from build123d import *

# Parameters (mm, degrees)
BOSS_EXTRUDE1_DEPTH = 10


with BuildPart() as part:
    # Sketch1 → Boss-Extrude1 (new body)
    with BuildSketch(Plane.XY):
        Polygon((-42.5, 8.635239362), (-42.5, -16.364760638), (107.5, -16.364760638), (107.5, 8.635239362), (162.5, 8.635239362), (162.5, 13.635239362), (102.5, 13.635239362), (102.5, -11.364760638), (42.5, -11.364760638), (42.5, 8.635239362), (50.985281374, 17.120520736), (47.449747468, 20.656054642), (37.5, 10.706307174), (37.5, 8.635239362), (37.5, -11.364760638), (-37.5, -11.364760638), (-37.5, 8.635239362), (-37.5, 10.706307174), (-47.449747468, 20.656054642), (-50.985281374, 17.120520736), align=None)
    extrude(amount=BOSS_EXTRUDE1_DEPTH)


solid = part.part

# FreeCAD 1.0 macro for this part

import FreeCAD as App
import Part
import Sketcher

V = App.Vector
Q = App.Units.Quantity


def add_polygon(sketch, points):
    """Adds a closed chain of lines whose ends are joined by coincident constraints."""
    first, n = sketch.GeometryCount, len(points)
    for a, b in zip(points, points[1:] + points[:1]):
        sketch.addGeometry(Part.LineSegment(App.Vector(*a, 0), App.Vector(*b, 0)), False)
    for i in range(n):
        sketch.addConstraint(Sketcher.Constraint("Coincident", first + i, 2, first + (i + 1) % n, 1))

doc = App.newDocument("Part")
body = doc.addObject("PartDesign::Body", "Body")

# Sketch on XY plane
sketch1 = doc.addObject("Sketcher::SketchObject", "Sketch")
body.addObject(sketch1)
sketch1.AttachmentSupport = (doc.XY_Plane, [""])
sketch1.MapMode = "FlatFace"
add_polygon(sketch1, [(-42.5, 8.635239), (-42.5, -16.364761), (107.5, -16.364761), (107.5, 8.635239), (162.5, 8.635239), (162.5, 13.635239), (102.5, 13.635239), (102.5, -11.364761), (42.5, -11.364761), (42.5, 8.635239), (50.985281, 17.120521), (47.449747, 20.656055), (37.5, 10.706307), (37.5, -11.364761), (-37.5, -11.364761), (-37.5, 10.706307), (-47.449747, 20.656055), (-50.985281, 17.120521)])  # lines 0-17
sketch1.addConstraint([
    Sketcher.Constraint("Vertical", 0),
    Sketcher.Constraint("Horizontal", 1),
    Sketcher.Constraint("Vertical", 2),
    Sketcher.Constraint("Horizontal", 3),
    Sketcher.Constraint("Vertical", 4),
    Sketcher.Constraint("Horizontal", 5),
    Sketcher.Constraint("Vertical", 6),
    Sketcher.Constraint("Horizontal", 7),
    Sketcher.Constraint("Vertical", 8),
    Sketcher.Constraint("Vertical", 12),
    Sketcher.Constraint("Horizontal", 13),
    Sketcher.Constraint("Vertical", 14),
    Sketcher.Constraint("Symmetric", 11, 2, 14, 2, -2),
    Sketcher.Constraint("Symmetric", 10, 2, 15, 2, -2),
    Sketcher.Constraint("Symmetric", 9, 2, 16, 2, -2),
    Sketcher.Constraint("Symmetric", 8, 2, 17, 2, -2),
    Sketcher.Constraint("Perpendicular", 9, 10),
    Sketcher.Constraint("Perpendicular", 10, 11),
    Sketcher.Constraint("Perpendicular", 11, 15),
    Sketcher.Constraint("Horizontal", 3, 2, 8, 2),
    Sketcher.Constraint("Horizontal", 7, 2, 12, 2),
    Sketcher.Constraint("Equal", 5, 7),
    Sketcher.Constraint("Equal", 2, 6),
    Sketcher.Constraint("DistanceX", 1, 1, 1, 2, Q("150 mm")),
    Sketcher.Constraint("DistanceX", 3, 1, 3, 2, Q("55 mm")),
    Sketcher.Constraint("DistanceX", 5, 2, 5, 1, Q("60 mm")),
    Sketcher.Constraint("DistanceX", 13, 2, 13, 1, Q("75 mm")),
    Sketcher.Constraint("DistanceY", 0, 2, 0, 1, Q("25 mm")),
    Sketcher.Constraint("DistanceY", 4, 1, 4, 2, Q("5 mm")),
    Sketcher.Constraint("Distance", 9, Q("12 mm")),
    Sketcher.Constraint("Distance", 10, Q("5 mm")),
    Sketcher.Constraint("DistanceY", 0, 2, -1, 1, Q("16.364761 mm")),
])
pad1 = doc.addObject("PartDesign::Pad", "Pad")
body.addObject(pad1)
pad1.Profile = sketch1
pad1.Length = 10

doc.recompute()
